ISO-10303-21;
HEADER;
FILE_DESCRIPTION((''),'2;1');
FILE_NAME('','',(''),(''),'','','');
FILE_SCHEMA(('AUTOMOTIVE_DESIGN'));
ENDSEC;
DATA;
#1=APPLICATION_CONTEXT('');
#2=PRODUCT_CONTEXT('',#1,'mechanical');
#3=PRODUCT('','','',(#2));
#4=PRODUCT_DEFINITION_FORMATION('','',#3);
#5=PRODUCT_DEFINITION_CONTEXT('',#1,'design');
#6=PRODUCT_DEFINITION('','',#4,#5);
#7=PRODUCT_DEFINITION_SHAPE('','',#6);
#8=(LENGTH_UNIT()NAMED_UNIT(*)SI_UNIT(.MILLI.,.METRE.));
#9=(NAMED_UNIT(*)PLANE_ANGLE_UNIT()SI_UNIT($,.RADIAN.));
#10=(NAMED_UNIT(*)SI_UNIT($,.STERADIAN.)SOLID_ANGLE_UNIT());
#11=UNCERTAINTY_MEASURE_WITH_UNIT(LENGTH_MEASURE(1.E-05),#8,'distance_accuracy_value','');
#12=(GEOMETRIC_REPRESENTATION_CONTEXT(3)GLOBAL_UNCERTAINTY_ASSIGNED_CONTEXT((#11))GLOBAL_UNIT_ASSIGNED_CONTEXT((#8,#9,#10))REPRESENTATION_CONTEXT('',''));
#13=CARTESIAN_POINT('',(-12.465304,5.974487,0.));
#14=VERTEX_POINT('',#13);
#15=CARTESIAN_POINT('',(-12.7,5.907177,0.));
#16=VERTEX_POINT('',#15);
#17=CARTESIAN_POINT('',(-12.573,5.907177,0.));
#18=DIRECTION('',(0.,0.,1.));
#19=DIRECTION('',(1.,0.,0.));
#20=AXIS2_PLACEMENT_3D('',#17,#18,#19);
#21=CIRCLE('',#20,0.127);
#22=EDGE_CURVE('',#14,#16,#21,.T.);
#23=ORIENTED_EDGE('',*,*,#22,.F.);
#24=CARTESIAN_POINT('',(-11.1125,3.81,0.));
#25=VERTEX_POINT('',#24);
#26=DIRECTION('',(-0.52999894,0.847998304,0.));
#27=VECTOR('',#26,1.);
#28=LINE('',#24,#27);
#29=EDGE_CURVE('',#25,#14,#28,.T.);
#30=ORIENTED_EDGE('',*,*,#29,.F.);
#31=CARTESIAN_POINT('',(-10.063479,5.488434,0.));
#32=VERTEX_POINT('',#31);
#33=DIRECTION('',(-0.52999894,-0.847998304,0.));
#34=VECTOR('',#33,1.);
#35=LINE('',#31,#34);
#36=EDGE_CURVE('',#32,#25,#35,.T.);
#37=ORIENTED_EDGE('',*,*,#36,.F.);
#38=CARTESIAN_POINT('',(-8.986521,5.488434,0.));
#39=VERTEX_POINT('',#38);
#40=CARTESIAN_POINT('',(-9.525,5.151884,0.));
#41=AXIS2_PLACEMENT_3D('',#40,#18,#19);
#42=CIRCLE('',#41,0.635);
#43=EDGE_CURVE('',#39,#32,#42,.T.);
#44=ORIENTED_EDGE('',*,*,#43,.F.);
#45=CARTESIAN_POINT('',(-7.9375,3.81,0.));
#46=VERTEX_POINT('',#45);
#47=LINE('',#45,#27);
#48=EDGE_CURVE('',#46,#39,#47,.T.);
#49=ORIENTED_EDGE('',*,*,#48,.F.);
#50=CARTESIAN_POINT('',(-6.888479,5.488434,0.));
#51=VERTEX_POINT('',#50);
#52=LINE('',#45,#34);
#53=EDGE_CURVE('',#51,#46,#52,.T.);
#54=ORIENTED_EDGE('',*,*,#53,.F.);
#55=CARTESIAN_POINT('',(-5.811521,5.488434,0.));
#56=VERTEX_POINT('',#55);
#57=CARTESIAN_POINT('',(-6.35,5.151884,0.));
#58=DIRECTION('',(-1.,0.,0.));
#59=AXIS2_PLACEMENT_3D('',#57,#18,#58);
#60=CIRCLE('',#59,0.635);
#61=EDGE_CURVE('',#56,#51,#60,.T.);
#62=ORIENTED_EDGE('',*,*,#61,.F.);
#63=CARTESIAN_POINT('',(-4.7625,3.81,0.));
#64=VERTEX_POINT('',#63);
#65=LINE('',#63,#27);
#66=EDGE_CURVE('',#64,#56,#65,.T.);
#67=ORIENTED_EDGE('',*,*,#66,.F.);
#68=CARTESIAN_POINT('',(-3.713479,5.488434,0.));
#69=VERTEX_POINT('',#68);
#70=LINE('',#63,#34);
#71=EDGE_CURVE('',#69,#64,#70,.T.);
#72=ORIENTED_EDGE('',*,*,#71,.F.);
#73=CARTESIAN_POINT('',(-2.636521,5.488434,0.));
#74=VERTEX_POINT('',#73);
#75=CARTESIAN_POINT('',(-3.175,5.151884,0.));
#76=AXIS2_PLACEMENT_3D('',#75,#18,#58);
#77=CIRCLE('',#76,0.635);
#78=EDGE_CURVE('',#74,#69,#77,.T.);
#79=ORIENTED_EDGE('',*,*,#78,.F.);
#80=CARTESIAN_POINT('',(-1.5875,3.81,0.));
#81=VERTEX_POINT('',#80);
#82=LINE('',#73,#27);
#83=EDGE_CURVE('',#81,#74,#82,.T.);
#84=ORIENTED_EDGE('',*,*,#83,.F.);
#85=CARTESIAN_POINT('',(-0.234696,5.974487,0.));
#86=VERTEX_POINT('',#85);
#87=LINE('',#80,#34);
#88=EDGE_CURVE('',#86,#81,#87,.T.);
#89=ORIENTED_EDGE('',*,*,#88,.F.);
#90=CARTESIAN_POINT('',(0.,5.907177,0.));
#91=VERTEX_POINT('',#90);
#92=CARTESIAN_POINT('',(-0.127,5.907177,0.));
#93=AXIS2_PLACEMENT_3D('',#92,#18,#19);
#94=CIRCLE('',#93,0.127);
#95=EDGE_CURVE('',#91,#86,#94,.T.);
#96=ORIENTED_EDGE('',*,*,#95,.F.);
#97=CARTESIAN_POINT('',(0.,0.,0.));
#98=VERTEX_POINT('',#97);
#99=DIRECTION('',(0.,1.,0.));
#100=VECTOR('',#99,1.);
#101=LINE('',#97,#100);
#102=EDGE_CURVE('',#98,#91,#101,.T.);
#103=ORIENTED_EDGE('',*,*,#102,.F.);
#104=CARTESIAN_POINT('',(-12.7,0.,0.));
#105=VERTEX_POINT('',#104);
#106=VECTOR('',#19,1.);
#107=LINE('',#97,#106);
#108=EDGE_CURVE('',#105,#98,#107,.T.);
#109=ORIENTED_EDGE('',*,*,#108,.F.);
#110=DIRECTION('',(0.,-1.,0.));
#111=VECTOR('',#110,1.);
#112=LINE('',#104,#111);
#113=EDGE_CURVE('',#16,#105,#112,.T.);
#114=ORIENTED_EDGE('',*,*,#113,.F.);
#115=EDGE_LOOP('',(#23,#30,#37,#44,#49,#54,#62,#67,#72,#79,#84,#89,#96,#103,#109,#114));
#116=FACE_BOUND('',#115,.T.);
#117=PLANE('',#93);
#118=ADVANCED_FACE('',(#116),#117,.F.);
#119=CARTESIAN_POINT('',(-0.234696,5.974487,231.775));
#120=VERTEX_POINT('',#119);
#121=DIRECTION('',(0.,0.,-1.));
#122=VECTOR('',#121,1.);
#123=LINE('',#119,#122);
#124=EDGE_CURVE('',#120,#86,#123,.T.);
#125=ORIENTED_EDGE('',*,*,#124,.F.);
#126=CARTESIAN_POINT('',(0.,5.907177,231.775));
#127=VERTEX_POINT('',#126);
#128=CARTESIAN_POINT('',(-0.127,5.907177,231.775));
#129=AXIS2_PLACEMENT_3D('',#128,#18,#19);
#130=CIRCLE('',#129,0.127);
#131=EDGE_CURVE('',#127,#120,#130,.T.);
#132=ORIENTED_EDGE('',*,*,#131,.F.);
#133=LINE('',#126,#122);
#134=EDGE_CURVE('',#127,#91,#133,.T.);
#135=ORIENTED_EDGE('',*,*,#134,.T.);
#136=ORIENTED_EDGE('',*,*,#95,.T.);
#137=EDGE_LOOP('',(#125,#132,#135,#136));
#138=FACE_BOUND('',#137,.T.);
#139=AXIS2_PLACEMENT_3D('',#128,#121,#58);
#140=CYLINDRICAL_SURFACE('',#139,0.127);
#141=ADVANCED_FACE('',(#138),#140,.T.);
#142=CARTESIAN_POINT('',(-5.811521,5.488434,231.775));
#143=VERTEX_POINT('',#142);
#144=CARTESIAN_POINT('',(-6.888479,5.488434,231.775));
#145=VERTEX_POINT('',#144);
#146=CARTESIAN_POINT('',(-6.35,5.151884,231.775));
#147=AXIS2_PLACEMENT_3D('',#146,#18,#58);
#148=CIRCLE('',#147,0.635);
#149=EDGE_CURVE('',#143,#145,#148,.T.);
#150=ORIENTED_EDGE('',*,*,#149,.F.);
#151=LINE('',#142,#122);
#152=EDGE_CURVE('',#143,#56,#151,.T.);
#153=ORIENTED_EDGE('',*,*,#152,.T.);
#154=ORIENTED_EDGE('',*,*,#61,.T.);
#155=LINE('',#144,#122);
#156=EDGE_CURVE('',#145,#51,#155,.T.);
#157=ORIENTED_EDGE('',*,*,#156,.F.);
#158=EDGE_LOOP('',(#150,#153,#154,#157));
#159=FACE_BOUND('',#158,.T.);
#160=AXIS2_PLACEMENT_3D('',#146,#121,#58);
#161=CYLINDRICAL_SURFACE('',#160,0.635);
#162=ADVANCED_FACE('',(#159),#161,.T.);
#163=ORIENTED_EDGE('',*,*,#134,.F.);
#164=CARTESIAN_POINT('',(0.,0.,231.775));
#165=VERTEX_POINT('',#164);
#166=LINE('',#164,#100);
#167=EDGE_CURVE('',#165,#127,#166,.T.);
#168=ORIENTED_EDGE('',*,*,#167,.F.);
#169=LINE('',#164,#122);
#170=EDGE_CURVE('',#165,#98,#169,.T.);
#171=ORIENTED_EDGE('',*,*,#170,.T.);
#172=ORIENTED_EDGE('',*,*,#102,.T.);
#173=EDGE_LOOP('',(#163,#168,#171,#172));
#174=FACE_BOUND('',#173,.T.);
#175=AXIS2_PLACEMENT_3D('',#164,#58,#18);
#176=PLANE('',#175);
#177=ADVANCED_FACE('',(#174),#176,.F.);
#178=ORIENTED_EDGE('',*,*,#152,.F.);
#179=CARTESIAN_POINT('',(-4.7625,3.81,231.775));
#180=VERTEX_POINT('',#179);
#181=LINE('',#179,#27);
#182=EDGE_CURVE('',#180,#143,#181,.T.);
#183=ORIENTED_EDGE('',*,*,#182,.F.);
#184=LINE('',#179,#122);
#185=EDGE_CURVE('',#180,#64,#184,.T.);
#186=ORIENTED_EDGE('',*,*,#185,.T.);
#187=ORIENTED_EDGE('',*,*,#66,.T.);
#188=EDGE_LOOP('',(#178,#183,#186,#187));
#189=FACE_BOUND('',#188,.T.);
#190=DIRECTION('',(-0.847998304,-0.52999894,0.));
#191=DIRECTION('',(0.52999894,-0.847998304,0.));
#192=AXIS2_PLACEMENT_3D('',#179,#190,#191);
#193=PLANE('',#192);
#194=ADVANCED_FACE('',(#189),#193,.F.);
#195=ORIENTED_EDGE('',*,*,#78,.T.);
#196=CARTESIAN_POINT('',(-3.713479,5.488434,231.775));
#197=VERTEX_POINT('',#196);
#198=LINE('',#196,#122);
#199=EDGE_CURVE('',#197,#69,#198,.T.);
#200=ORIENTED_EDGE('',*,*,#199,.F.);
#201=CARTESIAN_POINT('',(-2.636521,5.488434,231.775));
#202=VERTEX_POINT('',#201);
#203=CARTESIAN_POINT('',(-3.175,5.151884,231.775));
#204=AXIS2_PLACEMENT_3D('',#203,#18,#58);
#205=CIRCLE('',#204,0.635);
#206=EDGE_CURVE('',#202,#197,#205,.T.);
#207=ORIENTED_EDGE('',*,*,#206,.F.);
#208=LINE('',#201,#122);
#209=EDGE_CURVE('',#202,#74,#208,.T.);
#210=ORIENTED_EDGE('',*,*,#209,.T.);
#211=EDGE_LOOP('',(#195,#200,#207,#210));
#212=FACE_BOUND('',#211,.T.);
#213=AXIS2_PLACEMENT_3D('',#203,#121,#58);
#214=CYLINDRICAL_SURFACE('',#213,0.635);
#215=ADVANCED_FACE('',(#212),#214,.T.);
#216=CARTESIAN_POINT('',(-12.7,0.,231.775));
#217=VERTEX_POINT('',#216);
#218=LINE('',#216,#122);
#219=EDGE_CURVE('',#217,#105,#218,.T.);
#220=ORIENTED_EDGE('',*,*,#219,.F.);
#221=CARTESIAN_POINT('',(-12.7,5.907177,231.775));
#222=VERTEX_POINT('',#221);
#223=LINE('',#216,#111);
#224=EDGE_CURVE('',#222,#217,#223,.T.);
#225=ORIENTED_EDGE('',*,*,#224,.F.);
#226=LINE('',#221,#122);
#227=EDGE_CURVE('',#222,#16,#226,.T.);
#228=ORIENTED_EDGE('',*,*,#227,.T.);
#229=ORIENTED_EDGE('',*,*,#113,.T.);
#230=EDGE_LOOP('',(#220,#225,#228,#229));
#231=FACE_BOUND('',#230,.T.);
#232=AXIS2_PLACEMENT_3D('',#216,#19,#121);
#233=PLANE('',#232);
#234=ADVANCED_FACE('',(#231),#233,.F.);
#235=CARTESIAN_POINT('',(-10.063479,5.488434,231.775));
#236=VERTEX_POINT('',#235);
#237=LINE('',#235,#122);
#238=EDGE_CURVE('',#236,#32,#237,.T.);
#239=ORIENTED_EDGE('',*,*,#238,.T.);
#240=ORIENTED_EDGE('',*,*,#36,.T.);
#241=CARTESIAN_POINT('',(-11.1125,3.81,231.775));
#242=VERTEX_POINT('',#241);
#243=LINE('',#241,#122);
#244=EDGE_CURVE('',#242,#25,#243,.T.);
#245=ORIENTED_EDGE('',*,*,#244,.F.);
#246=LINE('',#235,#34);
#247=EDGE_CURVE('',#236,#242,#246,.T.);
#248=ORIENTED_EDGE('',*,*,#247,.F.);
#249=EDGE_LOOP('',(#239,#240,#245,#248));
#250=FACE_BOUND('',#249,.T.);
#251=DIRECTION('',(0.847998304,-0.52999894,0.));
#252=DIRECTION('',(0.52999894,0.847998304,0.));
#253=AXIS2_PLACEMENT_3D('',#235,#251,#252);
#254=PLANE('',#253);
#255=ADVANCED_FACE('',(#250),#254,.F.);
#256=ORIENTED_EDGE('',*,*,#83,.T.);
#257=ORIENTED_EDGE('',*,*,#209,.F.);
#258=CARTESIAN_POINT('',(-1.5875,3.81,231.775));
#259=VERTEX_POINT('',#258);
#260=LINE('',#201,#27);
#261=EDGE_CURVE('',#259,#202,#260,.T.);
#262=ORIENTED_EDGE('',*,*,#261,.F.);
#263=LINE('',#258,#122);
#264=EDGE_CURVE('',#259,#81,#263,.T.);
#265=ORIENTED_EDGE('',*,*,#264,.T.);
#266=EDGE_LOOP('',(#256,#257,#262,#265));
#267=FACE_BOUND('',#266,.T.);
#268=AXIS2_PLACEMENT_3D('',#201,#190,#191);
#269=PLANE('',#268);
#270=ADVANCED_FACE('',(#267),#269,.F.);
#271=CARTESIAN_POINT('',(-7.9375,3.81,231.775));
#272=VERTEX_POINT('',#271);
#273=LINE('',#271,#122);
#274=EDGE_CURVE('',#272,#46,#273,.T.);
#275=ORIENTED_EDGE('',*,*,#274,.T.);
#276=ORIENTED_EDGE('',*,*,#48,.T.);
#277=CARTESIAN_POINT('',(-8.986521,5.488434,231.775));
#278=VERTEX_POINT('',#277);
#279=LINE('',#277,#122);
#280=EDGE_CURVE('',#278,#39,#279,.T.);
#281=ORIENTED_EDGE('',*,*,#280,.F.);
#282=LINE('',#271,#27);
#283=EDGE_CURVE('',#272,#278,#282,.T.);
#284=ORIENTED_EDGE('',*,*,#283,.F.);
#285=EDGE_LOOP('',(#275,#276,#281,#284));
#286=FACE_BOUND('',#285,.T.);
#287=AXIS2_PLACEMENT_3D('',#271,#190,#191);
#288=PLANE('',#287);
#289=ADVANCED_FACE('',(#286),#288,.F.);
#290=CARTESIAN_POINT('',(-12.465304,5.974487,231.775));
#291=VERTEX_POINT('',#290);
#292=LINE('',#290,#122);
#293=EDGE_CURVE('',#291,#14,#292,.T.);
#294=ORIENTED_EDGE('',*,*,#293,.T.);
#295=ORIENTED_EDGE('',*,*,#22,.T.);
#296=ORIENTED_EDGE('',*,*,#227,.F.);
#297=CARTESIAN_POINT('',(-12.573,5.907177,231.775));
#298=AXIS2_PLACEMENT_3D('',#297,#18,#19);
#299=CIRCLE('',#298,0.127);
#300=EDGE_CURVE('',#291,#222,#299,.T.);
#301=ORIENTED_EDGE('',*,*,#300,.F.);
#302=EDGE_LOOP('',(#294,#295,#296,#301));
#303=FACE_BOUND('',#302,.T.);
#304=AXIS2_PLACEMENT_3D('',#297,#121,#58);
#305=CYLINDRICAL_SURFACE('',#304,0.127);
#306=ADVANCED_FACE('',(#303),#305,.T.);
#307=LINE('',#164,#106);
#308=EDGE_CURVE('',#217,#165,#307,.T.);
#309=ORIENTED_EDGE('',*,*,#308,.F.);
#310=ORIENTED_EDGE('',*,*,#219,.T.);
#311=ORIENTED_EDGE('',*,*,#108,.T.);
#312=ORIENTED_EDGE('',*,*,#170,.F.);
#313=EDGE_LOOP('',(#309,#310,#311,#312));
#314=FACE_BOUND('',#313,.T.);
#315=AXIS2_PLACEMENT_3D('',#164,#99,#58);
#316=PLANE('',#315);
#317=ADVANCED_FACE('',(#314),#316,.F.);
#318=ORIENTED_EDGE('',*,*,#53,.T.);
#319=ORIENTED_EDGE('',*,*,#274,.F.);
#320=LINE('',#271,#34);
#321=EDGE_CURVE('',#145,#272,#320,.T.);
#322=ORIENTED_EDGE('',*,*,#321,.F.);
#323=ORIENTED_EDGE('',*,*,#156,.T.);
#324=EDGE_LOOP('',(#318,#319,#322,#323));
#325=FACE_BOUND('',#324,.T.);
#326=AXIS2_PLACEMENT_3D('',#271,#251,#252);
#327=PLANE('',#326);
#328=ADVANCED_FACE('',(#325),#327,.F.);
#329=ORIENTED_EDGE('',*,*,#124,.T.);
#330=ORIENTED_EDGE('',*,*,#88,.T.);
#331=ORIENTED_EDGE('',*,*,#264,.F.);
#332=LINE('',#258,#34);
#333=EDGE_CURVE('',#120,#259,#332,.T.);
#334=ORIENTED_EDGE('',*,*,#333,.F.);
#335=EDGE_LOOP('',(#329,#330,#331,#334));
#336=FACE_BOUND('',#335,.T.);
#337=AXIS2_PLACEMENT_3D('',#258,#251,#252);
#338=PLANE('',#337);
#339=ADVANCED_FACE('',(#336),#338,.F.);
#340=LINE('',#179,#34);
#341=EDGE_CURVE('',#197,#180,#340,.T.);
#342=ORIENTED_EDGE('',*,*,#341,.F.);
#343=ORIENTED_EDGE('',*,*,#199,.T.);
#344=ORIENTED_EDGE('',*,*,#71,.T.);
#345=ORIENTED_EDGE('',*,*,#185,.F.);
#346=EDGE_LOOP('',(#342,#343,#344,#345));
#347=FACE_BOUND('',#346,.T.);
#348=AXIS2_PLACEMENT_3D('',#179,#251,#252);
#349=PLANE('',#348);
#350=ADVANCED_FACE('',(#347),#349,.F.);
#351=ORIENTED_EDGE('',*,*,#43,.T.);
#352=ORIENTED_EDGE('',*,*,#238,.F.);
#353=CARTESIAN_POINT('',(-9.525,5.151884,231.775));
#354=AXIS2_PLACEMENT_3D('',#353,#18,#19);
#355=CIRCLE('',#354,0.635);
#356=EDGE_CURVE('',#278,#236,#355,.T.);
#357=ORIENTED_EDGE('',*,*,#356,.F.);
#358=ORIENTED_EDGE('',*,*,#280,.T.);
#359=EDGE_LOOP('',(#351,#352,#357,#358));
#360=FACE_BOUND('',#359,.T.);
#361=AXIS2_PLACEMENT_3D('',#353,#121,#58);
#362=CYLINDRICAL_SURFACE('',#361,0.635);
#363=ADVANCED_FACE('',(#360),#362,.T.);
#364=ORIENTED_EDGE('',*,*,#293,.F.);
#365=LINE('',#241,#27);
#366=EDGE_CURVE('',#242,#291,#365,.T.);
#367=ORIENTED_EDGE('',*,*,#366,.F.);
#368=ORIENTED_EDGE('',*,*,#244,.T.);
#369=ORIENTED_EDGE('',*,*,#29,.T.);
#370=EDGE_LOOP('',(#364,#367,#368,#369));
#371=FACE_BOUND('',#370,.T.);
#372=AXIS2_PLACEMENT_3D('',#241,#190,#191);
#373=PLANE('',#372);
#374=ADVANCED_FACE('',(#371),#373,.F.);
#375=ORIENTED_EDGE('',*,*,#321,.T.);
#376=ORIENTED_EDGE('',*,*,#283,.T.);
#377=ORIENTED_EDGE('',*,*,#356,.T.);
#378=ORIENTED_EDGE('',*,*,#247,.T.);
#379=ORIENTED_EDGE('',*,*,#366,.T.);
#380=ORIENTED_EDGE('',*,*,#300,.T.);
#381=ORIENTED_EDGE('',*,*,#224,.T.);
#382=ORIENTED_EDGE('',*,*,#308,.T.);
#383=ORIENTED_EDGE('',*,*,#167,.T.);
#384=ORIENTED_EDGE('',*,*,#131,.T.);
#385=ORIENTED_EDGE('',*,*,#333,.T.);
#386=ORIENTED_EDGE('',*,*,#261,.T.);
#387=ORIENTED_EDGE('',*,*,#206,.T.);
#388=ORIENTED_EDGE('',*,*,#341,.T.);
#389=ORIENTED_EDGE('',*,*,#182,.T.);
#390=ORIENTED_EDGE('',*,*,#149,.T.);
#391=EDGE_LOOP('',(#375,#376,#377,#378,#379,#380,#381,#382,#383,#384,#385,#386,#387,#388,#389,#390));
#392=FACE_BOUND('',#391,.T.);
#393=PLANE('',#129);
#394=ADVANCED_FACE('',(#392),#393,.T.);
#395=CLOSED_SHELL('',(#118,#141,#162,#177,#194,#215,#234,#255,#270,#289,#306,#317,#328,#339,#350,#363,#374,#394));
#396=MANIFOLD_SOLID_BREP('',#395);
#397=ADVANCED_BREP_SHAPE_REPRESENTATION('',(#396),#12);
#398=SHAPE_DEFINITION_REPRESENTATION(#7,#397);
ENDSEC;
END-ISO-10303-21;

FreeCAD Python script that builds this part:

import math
import FreeCAD as App
import Part
import Sketcher

V = App.Vector
Q = App.Units.Quantity

doc = App.newDocument("Part")
body = doc.addObject("PartDesign::Body", "Body")

sketch1 = body.newObject("Sketcher::SketchObject", "Sketch")
sketch1.AttachmentSupport = (doc.getObject("XY_Plane"), [""])
sketch1.MapMode = "FlatFace"
sketch1.addGeometry([
    Part.LineSegment(V(-12.7, 0, 0), V(0, 0, 0)),
    Part.LineSegment(V(0, 0, 0), V(0, 5.91, 0)),
    Part.ArcOfCircle(Part.Circle(V(-0.13, 5.91, 0), V(0, 0, 1), 0.13), math.radians(0), math.radians(148)),
    Part.LineSegment(V(-0.23, 5.97, 0), V(-1.59, 3.81, 0)),
    Part.LineSegment(V(-1.59, 3.81, 0), V(-2.64, 5.49, 0)),
    Part.ArcOfCircle(Part.Circle(V(-3.17, 5.15, 0), V(0, 0, 1), 0.64), math.radians(32), math.radians(148)),
    Part.LineSegment(V(-3.71, 5.49, 0), V(-4.76, 3.81, 0)),
    Part.LineSegment(V(-4.76, 3.81, 0), V(-5.81, 5.49, 0)),
    Part.ArcOfCircle(Part.Circle(V(-6.35, 5.15, 0), V(0, 0, 1), 0.64), math.radians(32), math.radians(148)),
    Part.LineSegment(V(-6.89, 5.49, 0), V(-7.94, 3.81, 0)),
    Part.LineSegment(V(-7.94, 3.81, 0), V(-8.99, 5.49, 0)),
    Part.ArcOfCircle(Part.Circle(V(-9.53, 5.15, 0), V(0, 0, 1), 0.64), math.radians(32), math.radians(148)),
    Part.LineSegment(V(-10.06, 5.49, 0), V(-11.11, 3.81, 0)),
    Part.LineSegment(V(-11.11, 3.81, 0), V(-12.47, 5.97, 0)),
    Part.ArcOfCircle(Part.Circle(V(-12.57, 5.91, 0), V(0, 0, 1), 0.13), math.radians(32), math.radians(180)),
    Part.LineSegment(V(-12.7, 5.91, 0), V(-12.7, 0, 0)),
], False)
sketch1.addConstraint([
    Sketcher.Constraint("Coincident", 0, 2, 1, 1),
    Sketcher.Constraint("Tangent", 1, 2, 2, 1),
    Sketcher.Constraint("Tangent", 2, 2, 3, 1),
    Sketcher.Constraint("Coincident", 3, 2, 4, 1),
    Sketcher.Constraint("Tangent", 4, 2, 5, 1),
    Sketcher.Constraint("Tangent", 5, 2, 6, 1),
    Sketcher.Constraint("Coincident", 6, 2, 7, 1),
    Sketcher.Constraint("Tangent", 7, 2, 8, 1),
    Sketcher.Constraint("Tangent", 8, 2, 9, 1),
    Sketcher.Constraint("Coincident", 9, 2, 10, 1),
    Sketcher.Constraint("Tangent", 10, 2, 11, 1),
    Sketcher.Constraint("Tangent", 11, 2, 12, 1),
    Sketcher.Constraint("Coincident", 12, 2, 13, 1),
    Sketcher.Constraint("Tangent", 13, 2, 14, 1),
    Sketcher.Constraint("Tangent", 14, 2, 15, 1),
    Sketcher.Constraint("Coincident", 15, 2, 0, 1),
    Sketcher.Constraint("Horizontal", 0),
    Sketcher.Constraint("Vertical", 1),
    Sketcher.Constraint("Vertical", 15),
    Sketcher.Constraint("Coincident", 0, 2, -1, 1),
    Sketcher.Constraint("Equal", 5, 8),
    Sketcher.Constraint("Equal", 8, 11),
    Sketcher.Constraint("Equal", 2, 14),
    Sketcher.Constraint("Parallel", 3, 6),
    Sketcher.Constraint("Parallel", 4, 7),
    Sketcher.Constraint("Parallel", 6, 9),
    Sketcher.Constraint("Parallel", 7, 10),
    Sketcher.Constraint("Parallel", 9, 12),
    Sketcher.Constraint("Parallel", 10, 13),
    Sketcher.Constraint("Horizontal", 5, 3, 8, 3),
    Sketcher.Constraint("Horizontal", 8, 3, 11, 3),
    Sketcher.Constraint("Horizontal", 2, 3, 14, 3),
    Sketcher.Constraint("Horizontal", 4, 2, 5, 2),
    Sketcher.Constraint("Horizontal", 3, 2, 6, 2),
    Sketcher.Constraint("Horizontal", 6, 2, 9, 2),
    Sketcher.Constraint("Horizontal", 9, 2, 12, 2),
    Sketcher.Constraint("DistanceX", 0, 1, 0, 2, Q("0.5 in")),
    Sketcher.Constraint("Radius", 2, Q("0.005 in")),
    Sketcher.Constraint("Radius", 5, Q("0.025 in")),
    Sketcher.Constraint("DistanceY", -1, 1, 3, 2, Q("0.15 in")),
    Sketcher.Constraint("DistanceX", 5, 3, 2, 3, Q("0.12 in")),
    Sketcher.Constraint("DistanceX", 4, 2, -1, 1, Q("0.1038 in")),
])
pad1 = body.newObject("PartDesign::Pad", "Pad")
pad1.Profile = sketch1
pad1.Length = Q("9.125 in")

doc.recompute()
